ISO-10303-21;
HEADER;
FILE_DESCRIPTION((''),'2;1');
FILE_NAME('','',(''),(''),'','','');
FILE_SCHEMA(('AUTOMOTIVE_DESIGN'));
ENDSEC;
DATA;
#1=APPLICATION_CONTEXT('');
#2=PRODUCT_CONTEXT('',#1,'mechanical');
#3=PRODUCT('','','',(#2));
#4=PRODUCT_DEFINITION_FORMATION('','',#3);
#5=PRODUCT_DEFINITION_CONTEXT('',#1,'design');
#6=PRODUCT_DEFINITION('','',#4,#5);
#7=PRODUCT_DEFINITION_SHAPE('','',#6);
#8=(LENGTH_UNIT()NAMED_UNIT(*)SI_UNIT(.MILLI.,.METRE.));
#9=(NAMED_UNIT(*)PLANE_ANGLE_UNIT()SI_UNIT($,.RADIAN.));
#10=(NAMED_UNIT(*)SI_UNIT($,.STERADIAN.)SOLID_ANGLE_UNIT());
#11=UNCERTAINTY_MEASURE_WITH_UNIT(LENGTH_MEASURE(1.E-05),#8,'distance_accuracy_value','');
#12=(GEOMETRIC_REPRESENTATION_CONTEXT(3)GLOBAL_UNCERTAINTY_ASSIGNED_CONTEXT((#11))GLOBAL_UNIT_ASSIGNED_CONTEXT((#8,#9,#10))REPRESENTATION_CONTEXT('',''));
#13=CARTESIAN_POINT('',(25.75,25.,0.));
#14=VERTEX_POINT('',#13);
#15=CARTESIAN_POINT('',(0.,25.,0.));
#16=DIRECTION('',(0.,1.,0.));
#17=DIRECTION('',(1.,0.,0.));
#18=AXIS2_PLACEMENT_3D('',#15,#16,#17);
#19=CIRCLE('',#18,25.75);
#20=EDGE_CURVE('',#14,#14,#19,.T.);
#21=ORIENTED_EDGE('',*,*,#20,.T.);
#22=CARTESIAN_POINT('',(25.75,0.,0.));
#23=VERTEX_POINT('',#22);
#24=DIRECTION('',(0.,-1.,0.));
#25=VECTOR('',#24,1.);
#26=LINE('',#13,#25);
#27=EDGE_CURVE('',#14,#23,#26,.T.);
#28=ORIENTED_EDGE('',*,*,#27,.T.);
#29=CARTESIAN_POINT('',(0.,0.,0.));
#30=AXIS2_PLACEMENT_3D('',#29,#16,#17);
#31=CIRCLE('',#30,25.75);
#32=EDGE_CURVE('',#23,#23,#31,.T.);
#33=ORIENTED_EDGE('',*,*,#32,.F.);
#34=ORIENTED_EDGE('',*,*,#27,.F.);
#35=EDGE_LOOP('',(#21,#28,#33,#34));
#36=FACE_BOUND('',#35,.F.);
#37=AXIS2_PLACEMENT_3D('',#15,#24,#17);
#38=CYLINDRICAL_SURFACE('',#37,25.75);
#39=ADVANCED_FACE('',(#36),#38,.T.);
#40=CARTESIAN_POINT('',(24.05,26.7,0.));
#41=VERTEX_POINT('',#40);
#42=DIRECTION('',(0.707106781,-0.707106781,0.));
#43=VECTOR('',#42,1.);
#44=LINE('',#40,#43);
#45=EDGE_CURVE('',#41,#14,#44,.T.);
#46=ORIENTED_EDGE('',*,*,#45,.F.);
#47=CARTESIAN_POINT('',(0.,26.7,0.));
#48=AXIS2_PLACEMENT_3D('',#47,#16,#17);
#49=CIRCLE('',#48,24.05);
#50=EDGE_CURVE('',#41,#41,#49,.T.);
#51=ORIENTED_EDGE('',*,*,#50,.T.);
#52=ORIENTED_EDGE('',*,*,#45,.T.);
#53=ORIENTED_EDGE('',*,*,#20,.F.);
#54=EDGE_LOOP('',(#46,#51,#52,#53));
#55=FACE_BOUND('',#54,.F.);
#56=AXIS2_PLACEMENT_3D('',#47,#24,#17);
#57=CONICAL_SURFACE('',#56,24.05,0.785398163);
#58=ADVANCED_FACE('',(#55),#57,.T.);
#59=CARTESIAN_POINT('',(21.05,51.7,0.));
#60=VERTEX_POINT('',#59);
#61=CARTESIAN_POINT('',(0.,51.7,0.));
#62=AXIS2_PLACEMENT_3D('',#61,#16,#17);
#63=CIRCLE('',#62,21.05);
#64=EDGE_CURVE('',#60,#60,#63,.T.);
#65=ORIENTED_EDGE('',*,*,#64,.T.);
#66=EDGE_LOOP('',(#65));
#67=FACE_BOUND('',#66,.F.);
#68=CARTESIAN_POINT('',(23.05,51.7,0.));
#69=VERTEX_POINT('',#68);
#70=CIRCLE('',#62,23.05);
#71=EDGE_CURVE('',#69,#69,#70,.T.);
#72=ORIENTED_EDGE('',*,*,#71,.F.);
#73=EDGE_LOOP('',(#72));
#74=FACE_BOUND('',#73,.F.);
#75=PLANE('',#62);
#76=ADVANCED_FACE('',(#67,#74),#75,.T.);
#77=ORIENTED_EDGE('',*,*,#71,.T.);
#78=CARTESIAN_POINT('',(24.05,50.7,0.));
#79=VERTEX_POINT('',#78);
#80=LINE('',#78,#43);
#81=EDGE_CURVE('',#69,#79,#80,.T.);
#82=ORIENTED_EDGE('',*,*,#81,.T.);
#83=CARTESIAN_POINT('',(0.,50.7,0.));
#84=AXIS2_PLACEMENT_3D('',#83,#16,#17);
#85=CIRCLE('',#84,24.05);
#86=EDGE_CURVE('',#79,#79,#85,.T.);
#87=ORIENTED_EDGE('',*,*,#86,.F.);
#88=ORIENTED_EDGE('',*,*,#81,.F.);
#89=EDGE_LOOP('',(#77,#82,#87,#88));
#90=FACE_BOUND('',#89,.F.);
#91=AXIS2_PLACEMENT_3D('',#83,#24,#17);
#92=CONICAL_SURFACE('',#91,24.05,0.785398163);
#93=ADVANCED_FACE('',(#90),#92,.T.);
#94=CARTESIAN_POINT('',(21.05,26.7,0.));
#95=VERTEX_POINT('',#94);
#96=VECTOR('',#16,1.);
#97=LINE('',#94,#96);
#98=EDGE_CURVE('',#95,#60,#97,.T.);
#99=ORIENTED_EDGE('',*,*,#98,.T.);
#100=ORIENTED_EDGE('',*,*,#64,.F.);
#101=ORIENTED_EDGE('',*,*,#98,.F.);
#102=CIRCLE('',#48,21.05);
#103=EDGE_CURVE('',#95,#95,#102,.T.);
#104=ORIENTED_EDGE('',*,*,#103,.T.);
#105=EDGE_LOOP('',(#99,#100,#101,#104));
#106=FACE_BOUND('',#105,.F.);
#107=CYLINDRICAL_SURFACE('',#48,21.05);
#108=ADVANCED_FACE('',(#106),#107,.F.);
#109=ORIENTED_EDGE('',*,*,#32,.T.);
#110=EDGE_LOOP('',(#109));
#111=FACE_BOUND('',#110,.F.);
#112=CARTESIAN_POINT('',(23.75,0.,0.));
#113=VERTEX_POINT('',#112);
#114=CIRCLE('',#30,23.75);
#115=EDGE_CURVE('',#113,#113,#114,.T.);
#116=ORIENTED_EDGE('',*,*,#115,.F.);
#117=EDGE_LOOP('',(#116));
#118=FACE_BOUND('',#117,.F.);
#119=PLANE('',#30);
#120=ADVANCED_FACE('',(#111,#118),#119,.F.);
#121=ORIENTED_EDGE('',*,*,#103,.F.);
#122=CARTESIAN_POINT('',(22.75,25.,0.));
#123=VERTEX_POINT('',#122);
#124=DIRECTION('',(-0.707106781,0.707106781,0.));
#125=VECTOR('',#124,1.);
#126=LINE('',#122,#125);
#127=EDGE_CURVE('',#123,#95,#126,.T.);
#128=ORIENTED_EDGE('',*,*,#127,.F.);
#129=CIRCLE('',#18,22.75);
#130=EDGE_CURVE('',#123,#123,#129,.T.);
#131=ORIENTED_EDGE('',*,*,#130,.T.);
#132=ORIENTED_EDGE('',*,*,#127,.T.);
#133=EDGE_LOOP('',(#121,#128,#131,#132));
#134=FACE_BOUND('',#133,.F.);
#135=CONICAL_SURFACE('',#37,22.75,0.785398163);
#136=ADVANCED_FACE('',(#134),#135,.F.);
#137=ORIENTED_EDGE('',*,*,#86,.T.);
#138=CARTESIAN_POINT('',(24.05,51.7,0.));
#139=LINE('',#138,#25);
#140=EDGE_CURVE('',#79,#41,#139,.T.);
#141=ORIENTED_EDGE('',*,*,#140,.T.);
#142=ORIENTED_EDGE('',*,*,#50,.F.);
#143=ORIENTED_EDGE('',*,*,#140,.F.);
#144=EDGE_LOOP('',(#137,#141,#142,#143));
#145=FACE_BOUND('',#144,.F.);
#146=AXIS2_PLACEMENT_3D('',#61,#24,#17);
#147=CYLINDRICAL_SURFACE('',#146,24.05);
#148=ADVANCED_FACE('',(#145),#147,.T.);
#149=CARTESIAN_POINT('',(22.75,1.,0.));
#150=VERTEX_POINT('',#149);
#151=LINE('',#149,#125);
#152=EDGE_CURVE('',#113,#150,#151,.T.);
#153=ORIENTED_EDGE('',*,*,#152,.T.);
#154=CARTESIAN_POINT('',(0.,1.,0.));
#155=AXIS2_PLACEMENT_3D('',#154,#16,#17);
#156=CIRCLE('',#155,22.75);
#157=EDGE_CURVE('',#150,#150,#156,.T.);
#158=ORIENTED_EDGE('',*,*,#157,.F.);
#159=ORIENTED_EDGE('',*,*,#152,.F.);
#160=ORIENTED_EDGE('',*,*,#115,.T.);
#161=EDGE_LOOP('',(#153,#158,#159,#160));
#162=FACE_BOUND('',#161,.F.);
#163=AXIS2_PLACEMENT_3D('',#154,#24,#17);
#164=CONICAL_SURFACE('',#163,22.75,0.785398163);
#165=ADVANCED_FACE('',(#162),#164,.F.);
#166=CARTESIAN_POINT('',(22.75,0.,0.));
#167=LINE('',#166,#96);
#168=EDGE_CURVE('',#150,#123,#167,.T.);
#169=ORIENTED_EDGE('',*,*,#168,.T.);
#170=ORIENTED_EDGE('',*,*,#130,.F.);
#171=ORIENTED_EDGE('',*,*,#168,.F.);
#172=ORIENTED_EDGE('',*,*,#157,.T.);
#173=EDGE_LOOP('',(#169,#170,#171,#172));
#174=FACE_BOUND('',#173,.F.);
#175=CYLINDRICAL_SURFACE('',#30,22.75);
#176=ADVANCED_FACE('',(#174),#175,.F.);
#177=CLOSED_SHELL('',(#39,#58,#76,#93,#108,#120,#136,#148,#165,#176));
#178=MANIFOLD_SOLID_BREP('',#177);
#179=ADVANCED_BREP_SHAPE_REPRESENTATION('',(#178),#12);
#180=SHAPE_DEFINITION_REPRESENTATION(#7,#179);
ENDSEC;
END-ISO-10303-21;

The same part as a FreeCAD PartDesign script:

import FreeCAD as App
import Part
import Sketcher
from FreeCAD import Vector
Q = App.Units.Quantity


def edges_at(feature, points):
    """Names of the edges that pass closest to the given points."""
    edges = feature.Shape.Edges
    near = lambda p: min(range(len(edges)), key=lambda i: edges[i].distToShape(Part.Vertex(*p))[0])
    return sorted({f"Edge{near(p) + 1}" for p in points})

doc = App.newDocument("Part")
body = doc.addObject("PartDesign::Body", "Body")

# Sketch on XY plane
sketch1 = doc.addObject("Sketcher::SketchObject", "Sketch")
body.addObject(sketch1)
sketch1.AttachmentSupport = (doc.XY_Plane, [""])
sketch1.MapMode = "FlatFace"
sketch1.addGeometry([
    Part.LineSegment(Vector(24.05, 51.7, 0), Vector(21.05, 51.7, 0)),  # 0
    Part.LineSegment(Vector(21.05, 51.7, 0), Vector(21.05, 26.7, 0)),  # 1
    Part.LineSegment(Vector(21.05, 26.7, 0), Vector(22.75, 25, 0)),  # 2
    Part.LineSegment(Vector(22.75, 25, 0), Vector(22.75, 0, 0)),  # 3
    Part.LineSegment(Vector(22.75, 0, 0), Vector(25.75, 0, 0)),  # 4
    Part.LineSegment(Vector(25.75, 0, 0), Vector(25.75, 25, 0)),  # 5
    Part.LineSegment(Vector(25.75, 25, 0), Vector(24.05, 26.7, 0)),  # 6
    Part.LineSegment(Vector(24.05, 26.7, 0), Vector(24.05, 51.7, 0)),  # 7
], False)
sketch1.addConstraint([
    Sketcher.Constraint("Coincident", 0, 2, 1, 1),
    Sketcher.Constraint("Coincident", 1, 2, 2, 1),
    Sketcher.Constraint("Coincident", 2, 2, 3, 1),
    Sketcher.Constraint("Coincident", 3, 2, 4, 1),
    Sketcher.Constraint("Coincident", 4, 2, 5, 1),
    Sketcher.Constraint("Coincident", 5, 2, 6, 1),
    Sketcher.Constraint("Coincident", 6, 2, 7, 1),
    Sketcher.Constraint("Coincident", 7, 2, 0, 1),
    Sketcher.Constraint("Horizontal", 0),
    Sketcher.Constraint("Vertical", 1),
    Sketcher.Constraint("Vertical", 3),
    Sketcher.Constraint("Horizontal", 4),
    Sketcher.Constraint("Vertical", 5),
    Sketcher.Constraint("Vertical", 7),
    Sketcher.Constraint("PointOnObject", 3, 2, -1),
    Sketcher.Constraint("Parallel", 2, 6),
    Sketcher.Constraint("Horizontal", 2, 2, 5, 2),
    Sketcher.Constraint("Horizontal", 1, 2, 6, 2),
    Sketcher.Constraint("Equal", 1, 3),
    Sketcher.Constraint("DistanceX", 0, 2, 0, 1, 3.0),
    Sketcher.Constraint("DistanceY", 1, 2, 1, 1, 25.0),
    Sketcher.Constraint("Angle", 2, Q("-45 deg")),
    Sketcher.Constraint("DistanceY", -1, 1, 0, 2, 51.7),
    Sketcher.Constraint("DistanceX", -1, 1, 0, 2, 21.05),
])
revolution = doc.addObject("PartDesign::Revolution", "Revolution")
body.addObject(revolution)
revolution.Profile = sketch1
revolution.ReferenceAxis = (sketch1, ["V_Axis"])
revolution.Angle = 360
doc.recompute()

chamfer = doc.addObject("PartDesign::Chamfer", "Chamfer")
body.addObject(chamfer)
chamfer.Base = (revolution, edges_at(revolution, [(-24.05, 51.7, 0), (-22.75, 0, 0)]))
chamfer.Size = 1

doc.recompute()
